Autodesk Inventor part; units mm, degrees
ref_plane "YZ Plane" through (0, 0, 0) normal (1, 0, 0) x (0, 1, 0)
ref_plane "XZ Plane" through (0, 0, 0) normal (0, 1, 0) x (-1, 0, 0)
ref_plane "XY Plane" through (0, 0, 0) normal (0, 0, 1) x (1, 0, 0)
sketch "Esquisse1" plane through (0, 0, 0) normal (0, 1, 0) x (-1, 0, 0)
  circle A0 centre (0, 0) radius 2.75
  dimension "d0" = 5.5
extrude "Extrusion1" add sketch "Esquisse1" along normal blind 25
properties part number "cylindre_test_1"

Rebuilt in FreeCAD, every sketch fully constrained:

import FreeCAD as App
import Part
import Sketcher

V = App.Vector
Q = App.Units.Quantity

doc = App.newDocument("Part")
body = doc.addObject("PartDesign::Body", "Body")

sketch1 = doc.addObject("Sketcher::SketchObject", "Sketch")
body.addObject(sketch1)
sketch1.AttachmentSupport = (doc.XZ_Plane, [""])
sketch1.MapMode = "FlatFace"
sketch1.addGeometry(Part.Circle(V(0, 0, 0), V(0, 0, 1), 2.8), False)
sketch1.addConstraint(Sketcher.Constraint("Coincident", 0, 3, -1, 1))
sketch1.addConstraint(Sketcher.Constraint("Diameter", 0, Q("5.5 mm")))
pad1 = doc.addObject("PartDesign::Pad", "Pad")
body.addObject(pad1)
pad1.Profile = sketch1
pad1.Length = 25
pad1.Reversed = True

doc.recompute()
